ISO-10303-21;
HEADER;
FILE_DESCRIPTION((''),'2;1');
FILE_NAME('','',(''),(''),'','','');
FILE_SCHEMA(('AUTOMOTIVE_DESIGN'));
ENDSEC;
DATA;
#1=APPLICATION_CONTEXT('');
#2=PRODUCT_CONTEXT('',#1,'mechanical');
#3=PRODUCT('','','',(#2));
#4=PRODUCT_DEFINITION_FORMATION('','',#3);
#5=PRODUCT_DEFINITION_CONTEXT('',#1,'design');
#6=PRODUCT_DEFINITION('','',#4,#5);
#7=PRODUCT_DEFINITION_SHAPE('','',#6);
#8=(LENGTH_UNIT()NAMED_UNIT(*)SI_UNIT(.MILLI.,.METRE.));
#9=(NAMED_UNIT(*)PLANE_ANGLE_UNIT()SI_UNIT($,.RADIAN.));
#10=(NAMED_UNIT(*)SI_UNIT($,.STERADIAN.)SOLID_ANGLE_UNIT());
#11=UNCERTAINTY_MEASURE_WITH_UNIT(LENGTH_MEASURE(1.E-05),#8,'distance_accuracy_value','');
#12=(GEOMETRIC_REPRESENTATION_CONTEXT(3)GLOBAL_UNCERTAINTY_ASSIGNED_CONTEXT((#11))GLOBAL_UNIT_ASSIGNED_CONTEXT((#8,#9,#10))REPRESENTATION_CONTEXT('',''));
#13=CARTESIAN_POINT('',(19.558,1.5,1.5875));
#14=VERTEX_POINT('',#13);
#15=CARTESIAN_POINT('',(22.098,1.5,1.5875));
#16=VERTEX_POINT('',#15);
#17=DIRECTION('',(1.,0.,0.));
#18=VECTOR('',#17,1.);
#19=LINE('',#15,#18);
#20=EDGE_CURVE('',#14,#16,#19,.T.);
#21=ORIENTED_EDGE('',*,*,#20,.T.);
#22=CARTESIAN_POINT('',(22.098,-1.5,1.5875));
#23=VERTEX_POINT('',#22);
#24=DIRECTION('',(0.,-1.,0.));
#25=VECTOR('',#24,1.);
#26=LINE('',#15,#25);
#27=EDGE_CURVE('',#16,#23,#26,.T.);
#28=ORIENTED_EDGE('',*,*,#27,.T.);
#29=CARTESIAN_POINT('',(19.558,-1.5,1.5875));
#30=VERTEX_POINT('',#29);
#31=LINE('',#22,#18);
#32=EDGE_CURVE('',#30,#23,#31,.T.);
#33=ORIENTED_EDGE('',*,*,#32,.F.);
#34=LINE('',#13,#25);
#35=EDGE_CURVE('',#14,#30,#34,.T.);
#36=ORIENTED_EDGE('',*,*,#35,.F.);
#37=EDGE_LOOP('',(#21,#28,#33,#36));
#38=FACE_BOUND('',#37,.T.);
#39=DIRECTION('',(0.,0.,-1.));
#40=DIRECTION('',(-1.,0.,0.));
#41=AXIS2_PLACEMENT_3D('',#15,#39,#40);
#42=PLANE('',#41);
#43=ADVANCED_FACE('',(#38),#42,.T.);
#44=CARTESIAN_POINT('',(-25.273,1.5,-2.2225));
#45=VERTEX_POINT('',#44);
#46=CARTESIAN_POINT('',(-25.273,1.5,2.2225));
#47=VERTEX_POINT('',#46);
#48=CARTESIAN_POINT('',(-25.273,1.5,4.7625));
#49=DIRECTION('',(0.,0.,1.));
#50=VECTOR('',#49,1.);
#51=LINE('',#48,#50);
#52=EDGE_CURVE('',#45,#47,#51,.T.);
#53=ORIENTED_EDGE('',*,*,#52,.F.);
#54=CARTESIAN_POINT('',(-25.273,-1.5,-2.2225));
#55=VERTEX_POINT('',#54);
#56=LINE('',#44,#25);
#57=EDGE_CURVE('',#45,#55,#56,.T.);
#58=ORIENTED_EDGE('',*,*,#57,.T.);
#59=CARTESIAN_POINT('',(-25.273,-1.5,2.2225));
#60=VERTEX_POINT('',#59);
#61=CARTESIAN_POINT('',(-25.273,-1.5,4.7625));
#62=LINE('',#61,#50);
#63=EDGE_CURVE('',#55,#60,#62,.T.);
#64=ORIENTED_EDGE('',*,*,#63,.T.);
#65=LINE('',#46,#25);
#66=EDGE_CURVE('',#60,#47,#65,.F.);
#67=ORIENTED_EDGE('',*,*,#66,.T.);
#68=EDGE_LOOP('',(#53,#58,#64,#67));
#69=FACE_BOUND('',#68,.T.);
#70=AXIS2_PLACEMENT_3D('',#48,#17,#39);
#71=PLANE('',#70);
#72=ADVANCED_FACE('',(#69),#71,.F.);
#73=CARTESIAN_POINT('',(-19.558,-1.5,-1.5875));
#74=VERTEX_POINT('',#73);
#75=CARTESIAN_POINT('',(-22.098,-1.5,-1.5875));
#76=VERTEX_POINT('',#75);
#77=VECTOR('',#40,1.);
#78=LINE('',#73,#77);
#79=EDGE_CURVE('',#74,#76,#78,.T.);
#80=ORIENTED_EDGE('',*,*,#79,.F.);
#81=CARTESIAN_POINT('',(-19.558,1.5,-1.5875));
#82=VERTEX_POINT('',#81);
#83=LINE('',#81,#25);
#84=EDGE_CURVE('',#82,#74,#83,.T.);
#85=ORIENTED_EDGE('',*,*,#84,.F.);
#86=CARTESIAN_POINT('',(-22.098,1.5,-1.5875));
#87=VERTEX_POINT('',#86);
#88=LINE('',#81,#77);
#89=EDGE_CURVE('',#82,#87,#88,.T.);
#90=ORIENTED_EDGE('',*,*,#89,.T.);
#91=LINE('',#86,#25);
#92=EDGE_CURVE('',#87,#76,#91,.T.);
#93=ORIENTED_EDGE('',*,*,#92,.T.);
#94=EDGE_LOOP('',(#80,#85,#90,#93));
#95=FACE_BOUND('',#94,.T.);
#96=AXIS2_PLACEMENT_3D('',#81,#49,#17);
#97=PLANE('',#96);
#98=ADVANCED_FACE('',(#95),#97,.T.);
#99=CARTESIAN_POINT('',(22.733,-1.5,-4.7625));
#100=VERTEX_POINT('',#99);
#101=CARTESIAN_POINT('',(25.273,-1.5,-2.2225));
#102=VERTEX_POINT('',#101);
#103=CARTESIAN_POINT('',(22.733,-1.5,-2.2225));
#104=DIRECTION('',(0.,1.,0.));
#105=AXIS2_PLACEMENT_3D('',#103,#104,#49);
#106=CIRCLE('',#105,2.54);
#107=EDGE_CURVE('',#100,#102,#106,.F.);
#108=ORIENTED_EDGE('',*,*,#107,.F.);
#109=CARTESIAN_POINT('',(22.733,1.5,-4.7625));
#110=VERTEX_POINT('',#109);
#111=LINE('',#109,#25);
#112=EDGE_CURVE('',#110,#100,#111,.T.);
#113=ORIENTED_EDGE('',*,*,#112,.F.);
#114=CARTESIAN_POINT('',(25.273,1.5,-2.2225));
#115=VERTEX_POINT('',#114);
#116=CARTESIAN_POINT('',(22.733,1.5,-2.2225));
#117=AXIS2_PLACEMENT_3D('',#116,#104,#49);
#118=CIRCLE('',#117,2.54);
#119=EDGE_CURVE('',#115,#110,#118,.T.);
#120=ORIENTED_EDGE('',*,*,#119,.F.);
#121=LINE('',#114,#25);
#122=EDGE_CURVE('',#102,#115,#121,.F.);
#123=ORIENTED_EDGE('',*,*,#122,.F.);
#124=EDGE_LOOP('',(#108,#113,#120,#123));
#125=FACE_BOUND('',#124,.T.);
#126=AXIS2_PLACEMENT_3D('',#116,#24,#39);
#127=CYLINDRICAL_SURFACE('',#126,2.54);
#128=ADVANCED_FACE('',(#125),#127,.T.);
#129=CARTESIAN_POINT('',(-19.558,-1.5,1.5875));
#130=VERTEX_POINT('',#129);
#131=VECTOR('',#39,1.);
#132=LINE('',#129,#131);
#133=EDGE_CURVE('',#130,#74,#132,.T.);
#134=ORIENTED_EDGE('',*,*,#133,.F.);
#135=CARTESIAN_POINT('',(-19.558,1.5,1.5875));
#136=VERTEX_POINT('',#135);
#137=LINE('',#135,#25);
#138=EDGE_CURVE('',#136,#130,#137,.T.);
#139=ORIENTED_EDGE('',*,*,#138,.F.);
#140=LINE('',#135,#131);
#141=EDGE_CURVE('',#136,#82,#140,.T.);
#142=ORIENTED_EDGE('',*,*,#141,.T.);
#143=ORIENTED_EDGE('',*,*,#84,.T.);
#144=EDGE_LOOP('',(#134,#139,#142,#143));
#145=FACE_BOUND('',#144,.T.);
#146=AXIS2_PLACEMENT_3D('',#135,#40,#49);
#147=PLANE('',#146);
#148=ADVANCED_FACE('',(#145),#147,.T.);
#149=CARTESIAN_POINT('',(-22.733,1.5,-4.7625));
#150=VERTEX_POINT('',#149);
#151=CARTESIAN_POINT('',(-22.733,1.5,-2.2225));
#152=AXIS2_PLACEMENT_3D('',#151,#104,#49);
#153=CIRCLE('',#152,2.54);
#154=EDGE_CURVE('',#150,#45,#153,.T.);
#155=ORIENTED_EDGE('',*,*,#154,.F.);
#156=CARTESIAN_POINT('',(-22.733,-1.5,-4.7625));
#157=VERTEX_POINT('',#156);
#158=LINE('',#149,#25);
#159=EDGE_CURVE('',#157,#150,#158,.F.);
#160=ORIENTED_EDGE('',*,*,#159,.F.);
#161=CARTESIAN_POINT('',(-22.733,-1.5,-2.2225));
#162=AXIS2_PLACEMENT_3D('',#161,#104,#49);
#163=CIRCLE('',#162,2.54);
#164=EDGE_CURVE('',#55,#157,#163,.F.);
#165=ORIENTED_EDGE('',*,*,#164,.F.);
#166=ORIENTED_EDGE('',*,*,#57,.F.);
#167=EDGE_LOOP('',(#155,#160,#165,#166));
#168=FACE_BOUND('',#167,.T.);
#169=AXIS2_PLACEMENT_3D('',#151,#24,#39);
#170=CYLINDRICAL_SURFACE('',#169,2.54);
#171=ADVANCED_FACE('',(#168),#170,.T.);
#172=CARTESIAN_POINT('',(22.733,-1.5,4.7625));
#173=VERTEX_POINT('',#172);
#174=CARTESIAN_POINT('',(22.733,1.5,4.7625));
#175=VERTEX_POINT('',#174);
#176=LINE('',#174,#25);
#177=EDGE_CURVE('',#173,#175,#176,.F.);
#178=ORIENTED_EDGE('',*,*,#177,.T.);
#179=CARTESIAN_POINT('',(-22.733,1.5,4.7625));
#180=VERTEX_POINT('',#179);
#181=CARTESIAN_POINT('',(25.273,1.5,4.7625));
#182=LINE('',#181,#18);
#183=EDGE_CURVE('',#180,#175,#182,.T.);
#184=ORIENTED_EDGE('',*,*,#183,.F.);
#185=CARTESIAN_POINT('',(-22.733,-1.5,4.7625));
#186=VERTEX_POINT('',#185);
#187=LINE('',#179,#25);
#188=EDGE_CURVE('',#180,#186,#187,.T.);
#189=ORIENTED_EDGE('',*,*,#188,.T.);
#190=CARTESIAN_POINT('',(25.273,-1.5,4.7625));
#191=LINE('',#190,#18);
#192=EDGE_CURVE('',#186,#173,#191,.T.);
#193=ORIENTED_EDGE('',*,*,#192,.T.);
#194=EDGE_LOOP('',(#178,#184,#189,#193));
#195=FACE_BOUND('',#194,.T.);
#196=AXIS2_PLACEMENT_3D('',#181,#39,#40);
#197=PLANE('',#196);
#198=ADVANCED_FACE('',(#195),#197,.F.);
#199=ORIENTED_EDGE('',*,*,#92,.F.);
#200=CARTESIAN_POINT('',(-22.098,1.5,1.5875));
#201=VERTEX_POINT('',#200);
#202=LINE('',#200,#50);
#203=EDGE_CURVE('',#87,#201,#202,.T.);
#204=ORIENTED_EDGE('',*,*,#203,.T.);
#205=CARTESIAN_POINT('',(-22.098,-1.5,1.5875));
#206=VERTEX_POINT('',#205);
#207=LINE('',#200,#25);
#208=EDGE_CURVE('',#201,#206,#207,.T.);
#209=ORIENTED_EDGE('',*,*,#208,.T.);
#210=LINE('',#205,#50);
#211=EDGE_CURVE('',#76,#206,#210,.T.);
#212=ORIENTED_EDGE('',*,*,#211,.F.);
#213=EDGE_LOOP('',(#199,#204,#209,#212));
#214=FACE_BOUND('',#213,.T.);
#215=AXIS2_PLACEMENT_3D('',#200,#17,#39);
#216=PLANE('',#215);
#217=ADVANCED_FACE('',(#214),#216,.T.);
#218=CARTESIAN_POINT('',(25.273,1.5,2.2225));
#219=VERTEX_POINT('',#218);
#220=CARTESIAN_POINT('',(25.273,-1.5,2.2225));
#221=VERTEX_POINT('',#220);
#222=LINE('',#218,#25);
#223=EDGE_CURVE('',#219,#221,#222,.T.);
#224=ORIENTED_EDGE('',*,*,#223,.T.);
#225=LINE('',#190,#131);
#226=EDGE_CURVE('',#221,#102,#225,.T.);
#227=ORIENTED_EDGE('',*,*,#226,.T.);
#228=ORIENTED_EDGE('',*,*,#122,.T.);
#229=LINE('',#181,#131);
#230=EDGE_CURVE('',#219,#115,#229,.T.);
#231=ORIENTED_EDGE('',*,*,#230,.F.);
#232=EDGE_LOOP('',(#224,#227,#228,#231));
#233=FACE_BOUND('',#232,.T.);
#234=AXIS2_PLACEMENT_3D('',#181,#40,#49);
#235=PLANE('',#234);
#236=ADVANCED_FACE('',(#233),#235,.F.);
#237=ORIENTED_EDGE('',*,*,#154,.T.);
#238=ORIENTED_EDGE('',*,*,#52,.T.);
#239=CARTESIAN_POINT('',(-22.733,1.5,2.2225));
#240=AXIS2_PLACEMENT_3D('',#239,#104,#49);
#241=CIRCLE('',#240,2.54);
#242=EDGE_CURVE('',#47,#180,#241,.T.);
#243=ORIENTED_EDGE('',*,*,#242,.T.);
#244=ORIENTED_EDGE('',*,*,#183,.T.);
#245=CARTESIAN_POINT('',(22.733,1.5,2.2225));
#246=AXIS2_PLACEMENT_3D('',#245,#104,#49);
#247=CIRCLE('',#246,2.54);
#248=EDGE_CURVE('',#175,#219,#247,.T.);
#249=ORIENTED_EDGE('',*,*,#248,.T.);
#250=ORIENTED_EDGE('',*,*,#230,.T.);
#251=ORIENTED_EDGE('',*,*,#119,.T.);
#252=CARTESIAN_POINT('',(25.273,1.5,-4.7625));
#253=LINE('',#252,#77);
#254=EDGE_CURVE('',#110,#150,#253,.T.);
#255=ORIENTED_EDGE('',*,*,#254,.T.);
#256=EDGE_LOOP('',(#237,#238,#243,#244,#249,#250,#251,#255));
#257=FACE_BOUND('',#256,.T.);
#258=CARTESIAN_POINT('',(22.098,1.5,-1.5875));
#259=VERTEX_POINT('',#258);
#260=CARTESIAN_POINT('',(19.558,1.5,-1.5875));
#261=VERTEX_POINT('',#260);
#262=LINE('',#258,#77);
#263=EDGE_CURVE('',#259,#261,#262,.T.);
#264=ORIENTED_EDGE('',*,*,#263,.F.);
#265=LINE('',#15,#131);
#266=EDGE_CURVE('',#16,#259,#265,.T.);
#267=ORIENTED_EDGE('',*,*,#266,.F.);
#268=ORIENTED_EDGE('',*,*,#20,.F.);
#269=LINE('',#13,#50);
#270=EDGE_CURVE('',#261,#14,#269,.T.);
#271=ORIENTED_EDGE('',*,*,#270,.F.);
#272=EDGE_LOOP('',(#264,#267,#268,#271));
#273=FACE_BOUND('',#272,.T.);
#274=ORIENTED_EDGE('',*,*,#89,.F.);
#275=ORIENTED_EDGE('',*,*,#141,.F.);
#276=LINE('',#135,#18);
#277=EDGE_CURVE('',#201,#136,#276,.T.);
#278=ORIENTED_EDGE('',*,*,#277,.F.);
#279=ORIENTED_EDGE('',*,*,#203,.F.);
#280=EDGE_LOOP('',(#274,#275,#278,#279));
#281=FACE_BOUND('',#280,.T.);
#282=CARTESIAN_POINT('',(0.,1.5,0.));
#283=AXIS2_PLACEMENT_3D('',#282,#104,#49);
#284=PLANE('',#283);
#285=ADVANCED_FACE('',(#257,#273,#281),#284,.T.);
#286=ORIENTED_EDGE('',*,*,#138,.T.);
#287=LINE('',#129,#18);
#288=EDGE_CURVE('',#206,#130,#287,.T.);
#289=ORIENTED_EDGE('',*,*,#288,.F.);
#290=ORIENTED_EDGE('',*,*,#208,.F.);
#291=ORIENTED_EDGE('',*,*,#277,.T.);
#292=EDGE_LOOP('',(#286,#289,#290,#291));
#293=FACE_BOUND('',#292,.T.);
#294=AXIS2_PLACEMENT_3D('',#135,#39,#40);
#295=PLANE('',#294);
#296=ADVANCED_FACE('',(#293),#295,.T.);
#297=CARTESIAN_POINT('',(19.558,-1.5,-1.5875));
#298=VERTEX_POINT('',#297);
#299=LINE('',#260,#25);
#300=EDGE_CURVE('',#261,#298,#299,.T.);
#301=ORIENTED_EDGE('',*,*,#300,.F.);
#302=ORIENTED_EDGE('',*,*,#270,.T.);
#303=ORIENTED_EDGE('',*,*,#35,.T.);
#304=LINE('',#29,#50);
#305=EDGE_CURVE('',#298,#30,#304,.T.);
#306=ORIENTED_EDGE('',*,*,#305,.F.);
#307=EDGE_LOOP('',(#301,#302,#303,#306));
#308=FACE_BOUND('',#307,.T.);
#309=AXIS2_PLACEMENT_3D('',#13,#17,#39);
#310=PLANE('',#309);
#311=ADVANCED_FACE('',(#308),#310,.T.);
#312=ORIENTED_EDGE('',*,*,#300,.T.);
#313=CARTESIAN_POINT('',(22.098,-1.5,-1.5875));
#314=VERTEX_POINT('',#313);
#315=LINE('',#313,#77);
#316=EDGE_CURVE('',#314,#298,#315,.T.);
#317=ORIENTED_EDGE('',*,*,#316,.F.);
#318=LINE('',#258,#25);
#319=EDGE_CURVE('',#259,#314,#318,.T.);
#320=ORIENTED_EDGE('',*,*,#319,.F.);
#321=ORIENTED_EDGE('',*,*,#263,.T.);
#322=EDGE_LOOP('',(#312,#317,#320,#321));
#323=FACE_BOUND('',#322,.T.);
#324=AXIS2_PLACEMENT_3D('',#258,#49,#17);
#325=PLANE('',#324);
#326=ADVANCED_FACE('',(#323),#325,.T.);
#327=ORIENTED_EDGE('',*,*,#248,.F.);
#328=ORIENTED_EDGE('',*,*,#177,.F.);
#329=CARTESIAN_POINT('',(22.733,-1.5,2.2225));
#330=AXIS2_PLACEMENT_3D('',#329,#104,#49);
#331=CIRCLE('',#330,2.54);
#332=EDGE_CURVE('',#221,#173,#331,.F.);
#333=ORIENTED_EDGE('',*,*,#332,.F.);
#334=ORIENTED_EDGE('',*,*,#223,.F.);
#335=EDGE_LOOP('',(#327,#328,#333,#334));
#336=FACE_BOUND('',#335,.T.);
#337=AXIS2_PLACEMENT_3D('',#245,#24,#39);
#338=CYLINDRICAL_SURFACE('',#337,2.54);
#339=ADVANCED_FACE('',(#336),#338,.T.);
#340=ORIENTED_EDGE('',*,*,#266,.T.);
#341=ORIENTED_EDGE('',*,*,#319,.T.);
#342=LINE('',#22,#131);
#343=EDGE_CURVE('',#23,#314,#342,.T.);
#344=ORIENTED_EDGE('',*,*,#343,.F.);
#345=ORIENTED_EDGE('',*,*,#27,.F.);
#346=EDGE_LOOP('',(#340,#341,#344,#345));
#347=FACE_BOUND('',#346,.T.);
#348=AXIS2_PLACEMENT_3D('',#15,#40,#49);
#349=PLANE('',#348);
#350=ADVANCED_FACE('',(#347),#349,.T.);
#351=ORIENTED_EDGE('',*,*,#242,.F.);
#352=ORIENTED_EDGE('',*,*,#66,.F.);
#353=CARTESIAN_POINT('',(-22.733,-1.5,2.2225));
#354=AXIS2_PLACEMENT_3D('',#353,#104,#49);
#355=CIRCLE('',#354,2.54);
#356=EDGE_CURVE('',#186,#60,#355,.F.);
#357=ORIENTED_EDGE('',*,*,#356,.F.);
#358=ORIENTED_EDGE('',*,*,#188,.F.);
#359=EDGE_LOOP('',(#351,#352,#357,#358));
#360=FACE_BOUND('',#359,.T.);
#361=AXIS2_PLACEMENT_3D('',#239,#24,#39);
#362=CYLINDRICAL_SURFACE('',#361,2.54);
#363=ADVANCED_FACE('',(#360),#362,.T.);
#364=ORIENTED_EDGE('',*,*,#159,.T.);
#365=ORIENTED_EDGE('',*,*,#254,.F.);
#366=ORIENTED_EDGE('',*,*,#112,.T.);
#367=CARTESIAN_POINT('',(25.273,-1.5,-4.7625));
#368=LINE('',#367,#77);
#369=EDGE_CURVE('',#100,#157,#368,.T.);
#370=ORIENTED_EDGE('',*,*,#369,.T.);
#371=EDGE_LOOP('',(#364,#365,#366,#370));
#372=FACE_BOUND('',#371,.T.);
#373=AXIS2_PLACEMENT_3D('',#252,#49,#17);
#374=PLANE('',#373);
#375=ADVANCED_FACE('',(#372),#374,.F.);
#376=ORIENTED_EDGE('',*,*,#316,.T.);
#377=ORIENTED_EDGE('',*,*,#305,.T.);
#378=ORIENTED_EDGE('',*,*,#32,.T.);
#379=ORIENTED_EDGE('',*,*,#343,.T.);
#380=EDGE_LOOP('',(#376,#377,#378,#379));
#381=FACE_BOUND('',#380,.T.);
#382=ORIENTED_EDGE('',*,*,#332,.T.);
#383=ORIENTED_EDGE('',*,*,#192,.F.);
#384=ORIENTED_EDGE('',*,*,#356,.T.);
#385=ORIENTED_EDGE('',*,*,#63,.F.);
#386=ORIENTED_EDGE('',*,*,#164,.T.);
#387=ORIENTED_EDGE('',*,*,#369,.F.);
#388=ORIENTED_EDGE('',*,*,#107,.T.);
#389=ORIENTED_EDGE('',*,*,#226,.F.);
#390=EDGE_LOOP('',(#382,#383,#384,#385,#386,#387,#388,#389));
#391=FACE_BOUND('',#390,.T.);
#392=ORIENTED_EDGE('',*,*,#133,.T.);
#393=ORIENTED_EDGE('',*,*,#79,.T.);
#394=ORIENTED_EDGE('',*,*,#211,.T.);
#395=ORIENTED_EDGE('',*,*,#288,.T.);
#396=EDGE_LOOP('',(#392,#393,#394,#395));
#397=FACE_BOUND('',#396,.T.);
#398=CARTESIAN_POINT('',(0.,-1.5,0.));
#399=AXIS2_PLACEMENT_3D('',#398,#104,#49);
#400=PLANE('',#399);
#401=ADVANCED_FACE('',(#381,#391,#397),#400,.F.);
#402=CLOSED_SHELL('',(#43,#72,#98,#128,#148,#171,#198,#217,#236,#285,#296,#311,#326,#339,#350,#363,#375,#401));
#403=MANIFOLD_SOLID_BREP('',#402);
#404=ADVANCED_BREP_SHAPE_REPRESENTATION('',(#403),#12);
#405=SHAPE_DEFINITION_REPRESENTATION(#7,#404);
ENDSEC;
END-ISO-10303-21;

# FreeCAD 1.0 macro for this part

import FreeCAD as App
import Part
import Sketcher

V = App.Vector
Q = App.Units.Quantity


def edges_at(feature, points):
    """Names of the edges that pass closest to the given points."""
    edges = feature.Shape.Edges
    near = lambda p: min(range(len(edges)), key=lambda i: edges[i].distToShape(Part.Vertex(*p))[0])
    return sorted({f"Edge{near(p) + 1}" for p in points})

doc = App.newDocument("Part")
body = doc.addObject("PartDesign::Body", "Body")

# Sketch on XZ plane
sketch1 = body.newObject("Sketcher::SketchObject", "Sketch")
sketch1.AttachmentSupport = (doc.getObject("XZ_Plane"), [""])
sketch1.MapMode = "FlatFace"
sketch1.addGeometry([
    Part.LineSegment(V(-25.3, -4.8, 0), V(-25.3, 4.8, 0)),  # 0
    Part.LineSegment(V(-25.3, 4.8, 0), V(25.3, 4.8, 0)),  # 1
    Part.LineSegment(V(25.3, 4.8, 0), V(25.3, -4.8, 0)),  # 2
    Part.LineSegment(V(25.3, -4.8, 0), V(-25.3, -4.8, 0)),  # 3
    Part.LineSegment(V(-19.6, 1.6, 0), V(-22.1, 1.6, 0)),  # 4
    Part.LineSegment(V(-22.1, 1.6, 0), V(-22.1, -1.6, 0)),  # 5
    Part.LineSegment(V(-22.1, -1.6, 0), V(-19.6, -1.6, 0)),  # 6
    Part.LineSegment(V(-19.6, -1.6, 0), V(-19.6, 1.6, 0)),  # 7
    Part.LineSegment(V(22.1, 1.6, 0), V(19.6, 1.6, 0)),  # 8
    Part.LineSegment(V(19.6, 1.6, 0), V(19.6, -1.6, 0)),  # 9
    Part.LineSegment(V(19.6, -1.6, 0), V(22.1, -1.6, 0)),  # 10
    Part.LineSegment(V(22.1, -1.6, 0), V(22.1, 1.6, 0)),  # 11
], False)
sketch1.addConstraint([
    Sketcher.Constraint("Coincident", 0, 2, 1, 1),
    Sketcher.Constraint("Coincident", 1, 2, 2, 1),
    Sketcher.Constraint("Coincident", 2, 2, 3, 1),
    Sketcher.Constraint("Coincident", 3, 2, 0, 1),
    Sketcher.Constraint("Coincident", 4, 2, 5, 1),
    Sketcher.Constraint("Coincident", 5, 2, 6, 1),
    Sketcher.Constraint("Coincident", 6, 2, 7, 1),
    Sketcher.Constraint("Coincident", 7, 2, 4, 1),
    Sketcher.Constraint("Coincident", 8, 2, 9, 1),
    Sketcher.Constraint("Coincident", 9, 2, 10, 1),
    Sketcher.Constraint("Coincident", 10, 2, 11, 1),
    Sketcher.Constraint("Coincident", 11, 2, 8, 1),
    Sketcher.Constraint("Vertical", 0),
    Sketcher.Constraint("Horizontal", 1),
    Sketcher.Constraint("Vertical", 2),
    Sketcher.Constraint("Horizontal", 3),
    Sketcher.Constraint("Horizontal", 4),
    Sketcher.Constraint("Vertical", 5),
    Sketcher.Constraint("Horizontal", 6),
    Sketcher.Constraint("Vertical", 7),
    Sketcher.Constraint("Horizontal", 8),
    Sketcher.Constraint("Vertical", 9),
    Sketcher.Constraint("Horizontal", 10),
    Sketcher.Constraint("Vertical", 11),
    Sketcher.Constraint("Symmetric", 0, 2, 2, 2, -1, 1),
    Sketcher.Constraint("Symmetric", 6, 2, 8, 2, -1, 1),
    Sketcher.Constraint("Symmetric", 4, 2, 10, 2, -1, 1),
    Sketcher.Constraint("Horizontal", 7, 2, 8, 2),
    Sketcher.Constraint("DistanceX", 4, 2, 4, 1, Q("0.1 in")),
    Sketcher.Constraint("DistanceX", 1, 1, 1, 2, Q("1.99 in")),
    Sketcher.Constraint("DistanceY", 0, 1, 0, 2, Q("0.375 in")),
    Sketcher.Constraint("DistanceY", 5, 2, 5, 1, Q("0.125 in")),
    Sketcher.Constraint("DistanceX", 4, 2, -1, 1, Q("0.87 in")),
])
pad1 = body.newObject("PartDesign::Pad", "Pad")
pad1.Profile = sketch1
pad1.Length = 3
pad1.Midplane = True
doc.recompute()

fillet = body.newObject("PartDesign::Fillet", "Fillet")
fillet.Base = (pad1, edges_at(pad1, [
    (-25.273, 0, -4.763),
    (25.273, 0, -4.763),
    (25.273, 0, 4.763),
    (-25.273, 0, 4.763),
]))
fillet.Radius = Q("0.1 in")

doc.recompute()
